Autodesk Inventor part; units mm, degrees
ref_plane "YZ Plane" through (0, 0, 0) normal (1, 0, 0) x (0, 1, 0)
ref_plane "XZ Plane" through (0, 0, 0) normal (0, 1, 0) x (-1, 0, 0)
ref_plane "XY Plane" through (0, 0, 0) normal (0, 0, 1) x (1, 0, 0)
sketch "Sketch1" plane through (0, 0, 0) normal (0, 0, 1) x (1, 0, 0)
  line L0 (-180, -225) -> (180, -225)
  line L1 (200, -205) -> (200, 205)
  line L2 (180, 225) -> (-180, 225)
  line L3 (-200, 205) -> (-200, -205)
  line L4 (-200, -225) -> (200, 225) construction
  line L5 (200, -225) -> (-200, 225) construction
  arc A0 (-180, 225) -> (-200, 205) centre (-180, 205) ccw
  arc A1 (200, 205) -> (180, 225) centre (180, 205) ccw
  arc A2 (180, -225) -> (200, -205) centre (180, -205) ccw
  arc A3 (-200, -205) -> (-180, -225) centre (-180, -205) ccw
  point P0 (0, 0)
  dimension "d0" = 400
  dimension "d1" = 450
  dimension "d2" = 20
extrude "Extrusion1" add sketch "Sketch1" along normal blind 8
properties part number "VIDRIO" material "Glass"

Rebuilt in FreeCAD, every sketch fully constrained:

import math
import FreeCAD as App
import Part
import Sketcher

V = App.Vector

doc = App.newDocument("Part")
body = doc.addObject("PartDesign::Body", "Body")

# Sketch on XY plane
sketch1 = body.newObject("Sketcher::SketchObject", "Sketch")
sketch1.AttachmentSupport = (doc.getObject("XY_Plane"), [""])
sketch1.MapMode = "FlatFace"
sketch1.addGeometry(Part.ArcOfCircle(Part.Circle(V(-180, -205, 0), V(0, 0, 1), 20), math.radians(180), math.radians(270)), False)
sketch1.addGeometry(Part.LineSegment(V(-180, -225, 0), V(180, -225, 0)), False)
sketch1.addGeometry(Part.ArcOfCircle(Part.Circle(V(180, -205, 0), V(0, 0, 1), 20), math.radians(-90), math.radians(0)), False)
sketch1.addGeometry(Part.LineSegment(V(200, -205, 0), V(200, 205, 0)), False)
sketch1.addGeometry(Part.ArcOfCircle(Part.Circle(V(180, 205, 0), V(0, 0, 1), 20), math.radians(0), math.radians(90)), False)
sketch1.addGeometry(Part.LineSegment(V(180, 225, 0), V(-180, 225, 0)), False)
sketch1.addGeometry(Part.ArcOfCircle(Part.Circle(V(-180, 205, 0), V(0, 0, 1), 20), math.radians(90), math.radians(180)), False)
sketch1.addGeometry(Part.LineSegment(V(-200, 205, 0), V(-200, -205, 0)), False)
sketch1.addConstraint(Sketcher.Constraint("Tangent", 0, 2, 1, 1))
sketch1.addConstraint(Sketcher.Constraint("Tangent", 1, 2, 2, 1))
sketch1.addConstraint(Sketcher.Constraint("Tangent", 2, 2, 3, 1))
sketch1.addConstraint(Sketcher.Constraint("Tangent", 3, 2, 4, 1))
sketch1.addConstraint(Sketcher.Constraint("Tangent", 4, 2, 5, 1))
sketch1.addConstraint(Sketcher.Constraint("Tangent", 5, 2, 6, 1))
sketch1.addConstraint(Sketcher.Constraint("Tangent", 6, 2, 7, 1))
sketch1.addConstraint(Sketcher.Constraint("Tangent", 7, 2, 0, 1))
sketch1.addConstraint(Sketcher.Constraint("Horizontal", 1))
sketch1.addConstraint(Sketcher.Constraint("Vertical", 3))
sketch1.addConstraint(Sketcher.Constraint("Horizontal", 5))
sketch1.addConstraint(Sketcher.Constraint("Vertical", 7))
sketch1.addConstraint(Sketcher.Constraint("Equal", 0, 2))
sketch1.addConstraint(Sketcher.Constraint("Equal", 2, 4))
sketch1.addConstraint(Sketcher.Constraint("Equal", 4, 6))
sketch1.addConstraint(Sketcher.Constraint("Symmetric", 0, 3, 4, 3, -1, 1))
sketch1.addConstraint(Sketcher.Constraint("Radius", 0, 20.0))
sketch1.addConstraint(Sketcher.Constraint("DistanceX", 6, 2, 3, 2, 400.0))
sketch1.addConstraint(Sketcher.Constraint("DistanceY", 3, 1, 3, 2, 410.0))
pad1 = body.newObject("PartDesign::Pad", "Pad")
pad1.Profile = sketch1
pad1.Length = 8

doc.recompute()
